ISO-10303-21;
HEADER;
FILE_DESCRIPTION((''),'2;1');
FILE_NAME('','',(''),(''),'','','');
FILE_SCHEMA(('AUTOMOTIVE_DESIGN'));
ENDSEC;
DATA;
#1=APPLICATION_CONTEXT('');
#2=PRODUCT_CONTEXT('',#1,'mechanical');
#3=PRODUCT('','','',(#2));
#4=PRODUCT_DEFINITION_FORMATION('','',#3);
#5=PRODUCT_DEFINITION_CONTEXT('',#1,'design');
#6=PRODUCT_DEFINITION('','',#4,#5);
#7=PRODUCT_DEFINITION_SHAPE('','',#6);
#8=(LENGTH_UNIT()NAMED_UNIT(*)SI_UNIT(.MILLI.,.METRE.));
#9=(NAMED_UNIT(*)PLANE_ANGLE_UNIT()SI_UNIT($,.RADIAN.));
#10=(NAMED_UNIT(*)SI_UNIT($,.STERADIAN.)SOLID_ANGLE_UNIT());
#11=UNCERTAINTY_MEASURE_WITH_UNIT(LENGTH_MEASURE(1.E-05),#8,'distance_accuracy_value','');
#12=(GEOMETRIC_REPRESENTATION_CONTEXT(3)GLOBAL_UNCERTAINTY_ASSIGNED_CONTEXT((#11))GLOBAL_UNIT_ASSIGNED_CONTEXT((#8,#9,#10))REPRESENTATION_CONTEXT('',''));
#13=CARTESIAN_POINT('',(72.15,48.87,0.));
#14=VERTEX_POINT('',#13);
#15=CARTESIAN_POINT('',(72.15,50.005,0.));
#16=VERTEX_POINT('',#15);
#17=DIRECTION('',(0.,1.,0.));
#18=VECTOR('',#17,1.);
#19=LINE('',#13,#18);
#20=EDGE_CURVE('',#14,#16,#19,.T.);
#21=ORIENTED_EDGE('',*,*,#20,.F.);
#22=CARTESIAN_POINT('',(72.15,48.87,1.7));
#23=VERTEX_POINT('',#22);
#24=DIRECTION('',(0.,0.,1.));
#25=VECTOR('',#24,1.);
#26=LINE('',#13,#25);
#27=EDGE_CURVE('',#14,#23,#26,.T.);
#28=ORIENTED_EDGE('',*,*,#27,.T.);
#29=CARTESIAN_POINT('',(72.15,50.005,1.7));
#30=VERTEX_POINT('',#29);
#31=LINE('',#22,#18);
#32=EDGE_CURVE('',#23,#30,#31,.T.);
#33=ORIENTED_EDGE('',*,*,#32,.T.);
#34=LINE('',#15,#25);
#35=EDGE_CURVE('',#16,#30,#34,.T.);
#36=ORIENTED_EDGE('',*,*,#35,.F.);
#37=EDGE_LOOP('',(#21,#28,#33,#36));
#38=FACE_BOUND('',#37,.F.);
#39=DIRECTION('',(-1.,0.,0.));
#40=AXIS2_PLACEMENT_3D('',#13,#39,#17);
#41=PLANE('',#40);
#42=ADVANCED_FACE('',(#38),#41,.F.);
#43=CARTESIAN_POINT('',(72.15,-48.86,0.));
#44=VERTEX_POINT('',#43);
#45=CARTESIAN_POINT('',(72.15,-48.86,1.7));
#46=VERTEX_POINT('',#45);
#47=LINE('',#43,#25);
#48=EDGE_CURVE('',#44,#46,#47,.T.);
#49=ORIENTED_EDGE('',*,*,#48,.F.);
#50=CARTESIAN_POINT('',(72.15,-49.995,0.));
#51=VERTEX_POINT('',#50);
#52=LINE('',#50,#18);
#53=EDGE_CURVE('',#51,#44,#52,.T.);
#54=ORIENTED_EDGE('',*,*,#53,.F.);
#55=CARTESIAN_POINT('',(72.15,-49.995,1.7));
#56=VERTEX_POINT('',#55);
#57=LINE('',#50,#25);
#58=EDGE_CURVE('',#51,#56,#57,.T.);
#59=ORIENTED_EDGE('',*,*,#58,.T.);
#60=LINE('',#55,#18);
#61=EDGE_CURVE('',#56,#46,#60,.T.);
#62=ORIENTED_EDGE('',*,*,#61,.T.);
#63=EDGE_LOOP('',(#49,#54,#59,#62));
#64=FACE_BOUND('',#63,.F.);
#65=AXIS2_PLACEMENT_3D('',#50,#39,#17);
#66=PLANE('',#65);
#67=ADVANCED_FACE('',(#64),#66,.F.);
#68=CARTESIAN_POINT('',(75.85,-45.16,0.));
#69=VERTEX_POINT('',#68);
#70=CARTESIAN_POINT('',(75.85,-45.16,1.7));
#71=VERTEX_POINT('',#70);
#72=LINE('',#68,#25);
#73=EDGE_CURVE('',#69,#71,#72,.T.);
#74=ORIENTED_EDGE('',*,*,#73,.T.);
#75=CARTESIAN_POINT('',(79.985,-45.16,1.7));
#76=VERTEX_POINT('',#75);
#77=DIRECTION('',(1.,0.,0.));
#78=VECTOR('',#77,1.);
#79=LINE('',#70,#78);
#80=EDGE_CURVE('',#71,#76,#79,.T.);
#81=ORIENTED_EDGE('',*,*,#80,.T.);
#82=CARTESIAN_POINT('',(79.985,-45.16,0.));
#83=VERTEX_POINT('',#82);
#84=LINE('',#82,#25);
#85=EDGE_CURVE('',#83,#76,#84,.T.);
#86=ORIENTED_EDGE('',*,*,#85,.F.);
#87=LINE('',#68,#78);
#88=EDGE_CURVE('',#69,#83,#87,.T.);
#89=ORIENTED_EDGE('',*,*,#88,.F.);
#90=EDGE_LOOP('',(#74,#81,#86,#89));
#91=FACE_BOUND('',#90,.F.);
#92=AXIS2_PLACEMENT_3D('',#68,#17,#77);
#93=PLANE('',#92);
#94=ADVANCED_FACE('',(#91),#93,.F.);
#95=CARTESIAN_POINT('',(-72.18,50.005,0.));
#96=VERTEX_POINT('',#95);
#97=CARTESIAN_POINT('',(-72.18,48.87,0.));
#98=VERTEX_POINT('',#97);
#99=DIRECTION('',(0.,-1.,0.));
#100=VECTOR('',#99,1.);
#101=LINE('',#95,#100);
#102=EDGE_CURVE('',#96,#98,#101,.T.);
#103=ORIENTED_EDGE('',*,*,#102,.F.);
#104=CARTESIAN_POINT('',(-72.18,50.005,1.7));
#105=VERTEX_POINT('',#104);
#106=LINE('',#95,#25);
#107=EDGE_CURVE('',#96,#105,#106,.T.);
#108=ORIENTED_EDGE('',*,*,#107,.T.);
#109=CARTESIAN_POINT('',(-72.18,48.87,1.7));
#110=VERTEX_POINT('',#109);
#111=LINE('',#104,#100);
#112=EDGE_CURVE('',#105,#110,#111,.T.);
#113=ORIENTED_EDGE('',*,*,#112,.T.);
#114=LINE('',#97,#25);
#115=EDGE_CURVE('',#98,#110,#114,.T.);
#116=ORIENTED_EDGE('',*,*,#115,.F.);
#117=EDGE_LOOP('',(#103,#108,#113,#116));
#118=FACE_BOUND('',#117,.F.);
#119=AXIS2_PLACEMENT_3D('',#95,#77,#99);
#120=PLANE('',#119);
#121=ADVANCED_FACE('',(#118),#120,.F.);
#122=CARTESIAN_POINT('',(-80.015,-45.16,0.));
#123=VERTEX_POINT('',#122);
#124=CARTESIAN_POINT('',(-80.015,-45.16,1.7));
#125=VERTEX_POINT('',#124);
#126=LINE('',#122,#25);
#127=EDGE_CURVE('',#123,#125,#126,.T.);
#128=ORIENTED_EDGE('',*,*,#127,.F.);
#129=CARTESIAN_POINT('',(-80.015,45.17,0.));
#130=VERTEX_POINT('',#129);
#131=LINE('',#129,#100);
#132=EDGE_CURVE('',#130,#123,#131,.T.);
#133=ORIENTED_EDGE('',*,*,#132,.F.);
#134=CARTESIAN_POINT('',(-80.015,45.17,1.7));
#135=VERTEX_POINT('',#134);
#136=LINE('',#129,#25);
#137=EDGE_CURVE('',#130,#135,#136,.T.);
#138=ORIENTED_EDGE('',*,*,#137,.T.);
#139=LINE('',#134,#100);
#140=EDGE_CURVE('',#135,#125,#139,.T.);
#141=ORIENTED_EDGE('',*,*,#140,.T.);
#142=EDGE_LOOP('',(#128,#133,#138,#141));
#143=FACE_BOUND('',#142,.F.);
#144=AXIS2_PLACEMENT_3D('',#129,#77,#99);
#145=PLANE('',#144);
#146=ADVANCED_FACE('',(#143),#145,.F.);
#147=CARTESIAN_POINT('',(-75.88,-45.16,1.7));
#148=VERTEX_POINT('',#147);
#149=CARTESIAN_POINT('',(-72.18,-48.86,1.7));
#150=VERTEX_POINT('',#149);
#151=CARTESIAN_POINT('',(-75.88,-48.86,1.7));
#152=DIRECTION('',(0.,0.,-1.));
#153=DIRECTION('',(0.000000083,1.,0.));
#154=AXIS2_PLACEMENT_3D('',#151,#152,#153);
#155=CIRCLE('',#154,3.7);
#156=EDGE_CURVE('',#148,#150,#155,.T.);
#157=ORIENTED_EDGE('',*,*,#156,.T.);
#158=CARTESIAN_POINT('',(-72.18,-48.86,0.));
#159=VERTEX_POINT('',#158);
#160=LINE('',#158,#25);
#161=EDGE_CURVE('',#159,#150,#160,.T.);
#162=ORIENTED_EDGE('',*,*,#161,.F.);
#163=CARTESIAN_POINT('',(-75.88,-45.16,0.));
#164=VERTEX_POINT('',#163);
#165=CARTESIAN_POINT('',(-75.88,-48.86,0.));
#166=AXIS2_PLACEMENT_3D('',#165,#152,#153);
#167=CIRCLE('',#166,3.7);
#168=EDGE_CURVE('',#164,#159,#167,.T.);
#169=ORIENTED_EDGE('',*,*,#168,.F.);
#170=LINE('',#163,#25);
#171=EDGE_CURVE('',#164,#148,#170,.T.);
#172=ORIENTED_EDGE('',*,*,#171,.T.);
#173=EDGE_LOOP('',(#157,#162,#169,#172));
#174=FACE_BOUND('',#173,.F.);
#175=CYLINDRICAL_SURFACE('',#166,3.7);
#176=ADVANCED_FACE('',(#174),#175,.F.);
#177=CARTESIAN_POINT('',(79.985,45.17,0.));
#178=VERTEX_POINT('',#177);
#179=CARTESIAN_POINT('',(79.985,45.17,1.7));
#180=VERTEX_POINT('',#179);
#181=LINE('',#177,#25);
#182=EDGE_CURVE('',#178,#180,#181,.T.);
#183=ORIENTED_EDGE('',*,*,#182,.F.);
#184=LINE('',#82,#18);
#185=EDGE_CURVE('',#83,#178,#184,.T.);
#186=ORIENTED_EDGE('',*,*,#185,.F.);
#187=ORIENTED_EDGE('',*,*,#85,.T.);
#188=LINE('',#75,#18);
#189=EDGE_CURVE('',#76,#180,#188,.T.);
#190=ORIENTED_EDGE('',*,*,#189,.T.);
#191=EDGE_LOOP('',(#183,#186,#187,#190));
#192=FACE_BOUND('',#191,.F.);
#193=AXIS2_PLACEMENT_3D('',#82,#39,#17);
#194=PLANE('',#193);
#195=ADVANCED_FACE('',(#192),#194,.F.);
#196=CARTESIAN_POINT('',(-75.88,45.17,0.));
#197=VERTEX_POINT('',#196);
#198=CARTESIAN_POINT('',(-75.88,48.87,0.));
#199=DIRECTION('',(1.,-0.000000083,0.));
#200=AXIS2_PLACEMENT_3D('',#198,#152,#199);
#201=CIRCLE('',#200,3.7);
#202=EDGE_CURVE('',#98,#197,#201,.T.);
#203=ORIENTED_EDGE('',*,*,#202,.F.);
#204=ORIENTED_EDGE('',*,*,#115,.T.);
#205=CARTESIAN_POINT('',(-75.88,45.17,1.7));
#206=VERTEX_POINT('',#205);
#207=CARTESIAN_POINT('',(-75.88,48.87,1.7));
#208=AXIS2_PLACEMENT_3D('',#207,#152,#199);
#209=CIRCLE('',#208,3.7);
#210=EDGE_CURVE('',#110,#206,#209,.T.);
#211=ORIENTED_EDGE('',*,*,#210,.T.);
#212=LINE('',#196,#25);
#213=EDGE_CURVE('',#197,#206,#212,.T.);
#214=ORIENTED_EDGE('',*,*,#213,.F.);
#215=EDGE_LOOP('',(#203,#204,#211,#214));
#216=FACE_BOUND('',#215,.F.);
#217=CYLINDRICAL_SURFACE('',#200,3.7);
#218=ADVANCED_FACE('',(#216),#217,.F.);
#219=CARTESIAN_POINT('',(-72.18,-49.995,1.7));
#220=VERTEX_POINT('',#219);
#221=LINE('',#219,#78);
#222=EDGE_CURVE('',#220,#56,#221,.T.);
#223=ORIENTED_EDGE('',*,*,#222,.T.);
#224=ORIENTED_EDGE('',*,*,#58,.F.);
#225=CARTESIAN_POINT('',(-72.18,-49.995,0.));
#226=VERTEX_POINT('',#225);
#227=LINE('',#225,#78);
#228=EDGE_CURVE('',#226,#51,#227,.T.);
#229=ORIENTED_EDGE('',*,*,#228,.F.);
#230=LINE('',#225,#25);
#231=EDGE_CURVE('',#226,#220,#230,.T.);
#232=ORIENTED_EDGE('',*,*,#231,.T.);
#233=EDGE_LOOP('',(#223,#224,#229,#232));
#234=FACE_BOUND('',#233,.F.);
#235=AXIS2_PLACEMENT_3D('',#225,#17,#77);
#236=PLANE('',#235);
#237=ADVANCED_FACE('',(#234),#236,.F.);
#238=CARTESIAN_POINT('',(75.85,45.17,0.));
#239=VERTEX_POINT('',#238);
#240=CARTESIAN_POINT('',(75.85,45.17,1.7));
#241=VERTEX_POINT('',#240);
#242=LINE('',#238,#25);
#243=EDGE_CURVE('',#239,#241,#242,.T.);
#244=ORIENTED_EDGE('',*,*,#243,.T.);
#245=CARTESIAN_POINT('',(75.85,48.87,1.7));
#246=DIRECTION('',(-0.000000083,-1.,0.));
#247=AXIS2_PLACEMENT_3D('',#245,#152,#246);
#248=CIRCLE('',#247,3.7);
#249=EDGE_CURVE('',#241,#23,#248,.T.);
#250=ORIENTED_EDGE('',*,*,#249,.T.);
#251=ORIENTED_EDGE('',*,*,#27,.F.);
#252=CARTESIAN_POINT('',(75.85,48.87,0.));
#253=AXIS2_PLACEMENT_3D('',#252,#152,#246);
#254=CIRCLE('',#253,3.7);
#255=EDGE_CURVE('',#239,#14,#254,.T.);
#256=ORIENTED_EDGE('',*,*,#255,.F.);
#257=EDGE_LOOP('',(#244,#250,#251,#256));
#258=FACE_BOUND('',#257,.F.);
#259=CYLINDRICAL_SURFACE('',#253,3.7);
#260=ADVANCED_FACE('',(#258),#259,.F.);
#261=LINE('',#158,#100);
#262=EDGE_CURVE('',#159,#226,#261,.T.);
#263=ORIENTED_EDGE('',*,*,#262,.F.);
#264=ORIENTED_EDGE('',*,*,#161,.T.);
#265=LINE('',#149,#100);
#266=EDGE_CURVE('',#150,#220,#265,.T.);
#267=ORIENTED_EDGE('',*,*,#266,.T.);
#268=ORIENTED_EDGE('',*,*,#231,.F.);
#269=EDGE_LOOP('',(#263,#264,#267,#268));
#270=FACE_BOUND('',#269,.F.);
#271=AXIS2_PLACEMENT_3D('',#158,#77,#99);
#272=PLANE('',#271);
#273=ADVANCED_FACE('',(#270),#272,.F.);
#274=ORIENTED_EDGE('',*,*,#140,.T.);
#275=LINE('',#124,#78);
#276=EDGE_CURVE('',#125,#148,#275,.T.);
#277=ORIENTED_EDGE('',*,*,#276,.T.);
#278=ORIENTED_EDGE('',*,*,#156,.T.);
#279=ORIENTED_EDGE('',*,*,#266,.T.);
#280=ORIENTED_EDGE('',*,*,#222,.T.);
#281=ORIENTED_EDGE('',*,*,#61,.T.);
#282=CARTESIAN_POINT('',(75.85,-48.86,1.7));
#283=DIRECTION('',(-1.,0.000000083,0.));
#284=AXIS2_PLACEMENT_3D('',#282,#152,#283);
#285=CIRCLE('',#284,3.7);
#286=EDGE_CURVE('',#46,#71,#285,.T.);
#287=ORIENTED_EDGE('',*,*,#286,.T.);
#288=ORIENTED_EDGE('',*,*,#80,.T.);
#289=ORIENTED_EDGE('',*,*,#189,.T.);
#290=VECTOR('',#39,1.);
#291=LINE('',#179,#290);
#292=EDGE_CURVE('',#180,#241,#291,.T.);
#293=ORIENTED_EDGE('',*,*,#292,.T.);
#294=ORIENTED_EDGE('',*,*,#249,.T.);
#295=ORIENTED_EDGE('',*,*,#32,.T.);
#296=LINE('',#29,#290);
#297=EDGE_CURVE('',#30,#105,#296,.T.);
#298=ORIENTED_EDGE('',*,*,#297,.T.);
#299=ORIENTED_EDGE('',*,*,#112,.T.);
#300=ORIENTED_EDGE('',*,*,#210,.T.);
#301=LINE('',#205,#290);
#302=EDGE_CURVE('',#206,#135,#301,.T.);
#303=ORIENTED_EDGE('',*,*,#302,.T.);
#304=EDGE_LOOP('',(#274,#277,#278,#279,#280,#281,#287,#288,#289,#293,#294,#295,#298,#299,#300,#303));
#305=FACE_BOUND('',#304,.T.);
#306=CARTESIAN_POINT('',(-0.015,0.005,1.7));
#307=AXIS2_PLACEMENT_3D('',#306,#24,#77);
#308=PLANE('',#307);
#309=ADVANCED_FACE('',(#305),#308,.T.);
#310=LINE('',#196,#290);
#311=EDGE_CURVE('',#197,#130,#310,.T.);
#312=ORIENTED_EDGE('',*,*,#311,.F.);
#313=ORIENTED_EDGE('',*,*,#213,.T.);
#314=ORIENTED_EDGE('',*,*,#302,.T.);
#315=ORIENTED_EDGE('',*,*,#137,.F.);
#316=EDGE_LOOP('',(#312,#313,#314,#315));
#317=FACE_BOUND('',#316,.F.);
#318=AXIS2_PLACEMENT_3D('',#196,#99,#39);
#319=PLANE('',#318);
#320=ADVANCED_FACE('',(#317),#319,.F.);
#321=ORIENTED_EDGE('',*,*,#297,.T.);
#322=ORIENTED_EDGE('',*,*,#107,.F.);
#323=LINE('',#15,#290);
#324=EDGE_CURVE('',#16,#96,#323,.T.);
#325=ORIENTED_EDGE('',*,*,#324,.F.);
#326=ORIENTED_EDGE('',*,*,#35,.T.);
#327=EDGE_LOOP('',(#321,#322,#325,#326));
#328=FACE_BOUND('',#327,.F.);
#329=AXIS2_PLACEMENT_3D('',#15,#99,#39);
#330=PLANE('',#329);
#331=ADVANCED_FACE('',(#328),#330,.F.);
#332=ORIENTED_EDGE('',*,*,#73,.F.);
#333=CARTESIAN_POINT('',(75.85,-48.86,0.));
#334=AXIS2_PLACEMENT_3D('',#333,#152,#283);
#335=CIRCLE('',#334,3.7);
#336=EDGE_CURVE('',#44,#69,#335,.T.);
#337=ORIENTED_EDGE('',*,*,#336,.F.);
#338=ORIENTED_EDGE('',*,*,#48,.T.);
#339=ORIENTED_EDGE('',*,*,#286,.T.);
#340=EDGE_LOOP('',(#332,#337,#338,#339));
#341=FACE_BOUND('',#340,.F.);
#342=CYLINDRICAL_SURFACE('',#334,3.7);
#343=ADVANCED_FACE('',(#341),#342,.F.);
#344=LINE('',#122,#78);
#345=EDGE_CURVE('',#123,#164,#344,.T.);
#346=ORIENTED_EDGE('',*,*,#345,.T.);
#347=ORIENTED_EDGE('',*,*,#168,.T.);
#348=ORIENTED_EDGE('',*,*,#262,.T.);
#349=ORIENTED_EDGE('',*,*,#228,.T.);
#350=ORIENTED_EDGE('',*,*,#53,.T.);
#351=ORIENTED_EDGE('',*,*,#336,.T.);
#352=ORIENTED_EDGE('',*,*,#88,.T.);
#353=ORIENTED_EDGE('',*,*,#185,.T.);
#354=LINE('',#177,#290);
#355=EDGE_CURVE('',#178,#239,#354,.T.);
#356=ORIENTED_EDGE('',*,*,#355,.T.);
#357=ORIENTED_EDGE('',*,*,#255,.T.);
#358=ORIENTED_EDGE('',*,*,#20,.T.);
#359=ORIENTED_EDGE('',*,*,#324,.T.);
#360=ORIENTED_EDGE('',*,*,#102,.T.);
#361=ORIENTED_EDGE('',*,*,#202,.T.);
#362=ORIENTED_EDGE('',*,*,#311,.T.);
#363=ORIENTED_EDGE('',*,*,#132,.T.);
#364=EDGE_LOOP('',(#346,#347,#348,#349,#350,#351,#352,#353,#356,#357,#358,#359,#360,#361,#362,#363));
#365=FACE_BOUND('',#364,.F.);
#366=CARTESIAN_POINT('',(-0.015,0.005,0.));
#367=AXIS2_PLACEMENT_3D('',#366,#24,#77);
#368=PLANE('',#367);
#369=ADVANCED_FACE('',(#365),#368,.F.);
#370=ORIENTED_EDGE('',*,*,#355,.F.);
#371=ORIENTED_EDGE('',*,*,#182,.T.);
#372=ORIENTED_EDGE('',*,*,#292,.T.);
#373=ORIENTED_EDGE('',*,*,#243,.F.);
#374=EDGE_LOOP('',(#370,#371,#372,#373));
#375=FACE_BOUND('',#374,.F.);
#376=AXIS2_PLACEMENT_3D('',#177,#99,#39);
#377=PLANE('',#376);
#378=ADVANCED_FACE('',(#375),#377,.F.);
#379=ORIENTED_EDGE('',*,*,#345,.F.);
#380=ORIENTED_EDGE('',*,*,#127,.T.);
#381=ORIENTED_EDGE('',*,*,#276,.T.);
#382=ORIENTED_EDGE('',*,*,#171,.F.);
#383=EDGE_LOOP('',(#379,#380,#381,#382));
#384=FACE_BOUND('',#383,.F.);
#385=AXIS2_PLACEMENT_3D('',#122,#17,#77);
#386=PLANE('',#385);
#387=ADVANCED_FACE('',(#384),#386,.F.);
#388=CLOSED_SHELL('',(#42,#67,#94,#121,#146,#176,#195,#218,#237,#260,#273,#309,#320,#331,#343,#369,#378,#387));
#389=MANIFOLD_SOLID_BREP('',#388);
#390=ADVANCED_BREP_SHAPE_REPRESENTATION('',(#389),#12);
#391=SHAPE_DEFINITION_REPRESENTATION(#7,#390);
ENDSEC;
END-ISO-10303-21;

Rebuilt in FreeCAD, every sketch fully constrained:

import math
import FreeCAD as App
import Part
import Sketcher
from FreeCAD import Vector

doc = App.newDocument("Part")
body = doc.addObject("PartDesign::Body", "Body")

# Sketch on XY plane
sketch1 = doc.addObject("Sketcher::SketchObject", "Sketch")
body.addObject(sketch1)
sketch1.AttachmentSupport = (doc.XY_Plane, [""])
sketch1.MapMode = "FlatFace"
sketch1.addGeometry([
    Part.LineSegment(Vector(-72.2, -48.9, 0), Vector(-72.2, -50, 0)),  # 0
    Part.LineSegment(Vector(-72.2, -50, 0), Vector(72.2, -50, 0)),  # 1
    Part.LineSegment(Vector(72.2, -50, 0), Vector(72.2, -48.9, 0)),  # 2
    Part.ArcOfCircle(Part.Circle(Vector(75.9, -48.9, 0), Vector(0, 0, 1), 3.7), math.radians(90), math.radians(180)),  # 3
    Part.LineSegment(Vector(75.8, -45.2, 0), Vector(80, -45.2, 0)),  # 4
    Part.LineSegment(Vector(80, -45.2, 0), Vector(80, 45.2, 0)),  # 5
    Part.LineSegment(Vector(80, 45.2, 0), Vector(75.8, 45.2, 0)),  # 6
    Part.ArcOfCircle(Part.Circle(Vector(75.9, 48.9, 0), Vector(0, 0, 1), 3.7), math.radians(-180), math.radians(-90)),  # 7
    Part.LineSegment(Vector(72.2, 48.9, 0), Vector(72.2, 50, 0)),  # 8
    Part.LineSegment(Vector(72.2, 50, 0), Vector(-72.2, 50, 0)),  # 9
    Part.LineSegment(Vector(-72.2, 50, 0), Vector(-72.2, 48.9, 0)),  # 10
    Part.ArcOfCircle(Part.Circle(Vector(-75.9, 48.9, 0), Vector(0, 0, 1), 3.7), math.radians(-90), math.radians(0)),  # 11
    Part.LineSegment(Vector(-75.9, 45.2, 0), Vector(-80, 45.2, 0)),  # 12
    Part.LineSegment(Vector(-80, 45.2, 0), Vector(-80, -45.2, 0)),  # 13
    Part.LineSegment(Vector(-80, -45.2, 0), Vector(-75.9, -45.2, 0)),  # 14
    Part.ArcOfCircle(Part.Circle(Vector(-75.9, -48.9, 0), Vector(0, 0, 1), 3.7), math.radians(0), math.radians(90)),  # 15
], False)
sketch1.addConstraint([
    Sketcher.Constraint("Coincident", 0, 2, 1, 1),
    Sketcher.Constraint("Coincident", 1, 2, 2, 1),
    Sketcher.Constraint("Tangent", 2, 2, 3, 2),
    Sketcher.Constraint("Tangent", 3, 1, 4, 1),
    Sketcher.Constraint("Coincident", 4, 2, 5, 1),
    Sketcher.Constraint("Coincident", 5, 2, 6, 1),
    Sketcher.Constraint("Tangent", 6, 2, 7, 2),
    Sketcher.Constraint("Tangent", 7, 1, 8, 1),
    Sketcher.Constraint("Coincident", 8, 2, 9, 1),
    Sketcher.Constraint("Coincident", 9, 2, 10, 1),
    Sketcher.Constraint("Tangent", 10, 2, 11, 2),
    Sketcher.Constraint("Tangent", 11, 1, 12, 1),
    Sketcher.Constraint("Coincident", 12, 2, 13, 1),
    Sketcher.Constraint("Coincident", 13, 2, 14, 1),
    Sketcher.Constraint("Tangent", 14, 2, 15, 2),
    Sketcher.Constraint("Tangent", 15, 1, 0, 1),
    Sketcher.Constraint("Vertical", 0),
    Sketcher.Constraint("Horizontal", 1),
    Sketcher.Constraint("Vertical", 2),
    Sketcher.Constraint("Horizontal", 4),
    Sketcher.Constraint("Vertical", 5),
    Sketcher.Constraint("Horizontal", 6),
    Sketcher.Constraint("Vertical", 8),
    Sketcher.Constraint("Horizontal", 9),
    Sketcher.Constraint("Vertical", 10),
    Sketcher.Constraint("Horizontal", 12),
    Sketcher.Constraint("Vertical", 13),
    Sketcher.Constraint("Horizontal", 14),
    Sketcher.Constraint("Equal", 3, 7),
    Sketcher.Constraint("Equal", 7, 11),
    Sketcher.Constraint("Equal", 11, 15),
    Sketcher.Constraint("Horizontal", 7, 3, 11, 3),
    Sketcher.Constraint("Horizontal", 3, 3, 15, 3),
    Sketcher.Constraint("Vertical", 3, 3, 7, 3),
    Sketcher.Constraint("Vertical", 11, 3, 15, 3),
    Sketcher.Constraint("Equal", 6, 12),
    Sketcher.Constraint("Equal", 2, 8),
    Sketcher.Constraint("Radius", 3, 3.7),
    Sketcher.Constraint("DistanceY", 0, 2, 9, 2, 100.0),
    Sketcher.Constraint("DistanceX", 1, 1, 1, 2, 144.33),
    Sketcher.Constraint("DistanceY", 5, 1, 5, 2, 90.33),
    Sketcher.Constraint("DistanceX", 4, 1, 4, 2, 4.135),
    Sketcher.Constraint("DistanceX", -1, 1, 3, 3, 75.85),
    Sketcher.Constraint("DistanceY", 3, 3, -1, 1, 48.86),
])
pad1 = doc.addObject("PartDesign::Pad", "Pad")
body.addObject(pad1)
pad1.Profile = sketch1
pad1.Length = 1.7

doc.recompute()
